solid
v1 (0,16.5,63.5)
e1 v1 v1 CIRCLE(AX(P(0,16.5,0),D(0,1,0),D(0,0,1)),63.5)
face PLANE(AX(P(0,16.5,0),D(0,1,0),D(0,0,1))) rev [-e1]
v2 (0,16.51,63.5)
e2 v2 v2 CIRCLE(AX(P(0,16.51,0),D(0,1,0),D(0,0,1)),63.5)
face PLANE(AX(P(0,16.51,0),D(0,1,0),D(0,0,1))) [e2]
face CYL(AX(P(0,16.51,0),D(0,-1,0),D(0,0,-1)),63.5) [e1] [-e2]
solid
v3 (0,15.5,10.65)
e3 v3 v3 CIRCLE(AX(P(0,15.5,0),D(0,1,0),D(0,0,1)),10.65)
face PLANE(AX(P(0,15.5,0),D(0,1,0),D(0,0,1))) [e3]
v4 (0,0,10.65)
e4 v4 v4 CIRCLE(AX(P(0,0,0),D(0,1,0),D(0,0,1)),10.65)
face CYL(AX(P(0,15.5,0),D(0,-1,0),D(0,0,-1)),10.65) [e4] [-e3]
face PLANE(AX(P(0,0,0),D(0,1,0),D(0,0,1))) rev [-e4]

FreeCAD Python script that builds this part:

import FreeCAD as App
import Part
import Sketcher
from FreeCAD import Vector
Q = App.Units.Quantity

doc = App.newDocument("Part")
body = doc.addObject("PartDesign::Body", "Body")

sketch1 = doc.addObject("Sketcher::SketchObject", "Sketch")
body.addObject(sketch1)
sketch1.AttachmentSupport = (doc.XZ_Plane, [""])
sketch1.MapMode = "FlatFace"
sketch1.addGeometry(Part.Circle(Vector(0, 0, 0), Vector(0, 0, 1), 10.65), False)
sketch1.addConstraint([
    Sketcher.Constraint("Coincident", 0, 3, -1, 1),
    Sketcher.Constraint("Diameter", 0, Q("21.3 mm")),
])
pad1 = doc.addObject("PartDesign::Pad", "Pad")
body.addObject(pad1)
pad1.Profile = sketch1
pad1.Length = 15.5
pad1.Reversed = True
body2 = doc.addObject("PartDesign::Body", "Body001")

sketch2 = doc.addObject("Sketcher::SketchObject", "Sketch001")
body2.addObject(sketch2)
sketch2.AttachmentSupport = (doc.getObject("XZ_Plane001"), [""])
sketch2.MapMode = "FlatFace"
sketch2.AttachmentOffset = App.Placement(Vector(0, 0, -16.5), App.Rotation())
sketch2.addGeometry(Part.Circle(Vector(0, 0, 0), Vector(0, 0, 1), 63.5), False)
sketch2.addConstraint([
    Sketcher.Constraint("Coincident", 0, 3, -1, 1),
    Sketcher.Constraint("Diameter", 0, Q("127 mm")),
])
pad2 = doc.addObject("PartDesign::Pad", "Pad001")
body2.addObject(pad2)
pad2.Profile = sketch2
pad2.Length = 0.01
pad2.Reversed = True

doc.recompute()
